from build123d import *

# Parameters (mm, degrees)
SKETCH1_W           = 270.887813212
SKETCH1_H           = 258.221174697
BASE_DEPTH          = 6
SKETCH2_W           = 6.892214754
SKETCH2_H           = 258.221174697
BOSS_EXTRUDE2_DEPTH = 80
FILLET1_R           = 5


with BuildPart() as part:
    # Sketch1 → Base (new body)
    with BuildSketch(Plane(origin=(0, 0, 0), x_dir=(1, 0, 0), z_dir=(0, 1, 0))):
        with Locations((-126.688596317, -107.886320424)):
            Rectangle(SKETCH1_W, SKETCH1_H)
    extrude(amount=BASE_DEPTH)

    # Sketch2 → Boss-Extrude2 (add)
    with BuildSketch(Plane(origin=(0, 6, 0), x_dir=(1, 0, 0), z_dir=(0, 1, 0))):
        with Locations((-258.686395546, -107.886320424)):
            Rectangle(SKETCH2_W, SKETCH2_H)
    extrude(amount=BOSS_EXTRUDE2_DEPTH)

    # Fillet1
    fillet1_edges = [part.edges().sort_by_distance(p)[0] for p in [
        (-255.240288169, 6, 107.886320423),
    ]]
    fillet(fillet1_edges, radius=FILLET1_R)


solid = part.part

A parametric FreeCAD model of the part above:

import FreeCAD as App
import Part
import Sketcher

V = App.Vector


def edges_at(feature, points):
    """Names of the edges that pass closest to the given points."""
    edges = feature.Shape.Edges
    near = lambda p: min(range(len(edges)), key=lambda i: edges[i].distToShape(Part.Vertex(*p))[0])
    return sorted({f"Edge{near(p) + 1}" for p in points})


def add_polygon(sketch, points):
    """Adds a closed chain of lines whose ends are joined by coincident constraints."""
    first, n = sketch.GeometryCount, len(points)
    for a, b in zip(points, points[1:] + points[:1]):
        sketch.addGeometry(Part.LineSegment(App.Vector(*a, 0), App.Vector(*b, 0)), False)
    for i in range(n):
        sketch.addConstraint(Sketcher.Constraint("Coincident", first + i, 2, first + (i + 1) % n, 1))

doc = App.newDocument("Part")
body = doc.addObject("PartDesign::Body", "Body")

# Sketch on XZ plane
sketch1 = body.newObject("Sketcher::SketchObject", "Sketch")
sketch1.AttachmentSupport = (doc.getObject("XZ_Plane"), [""])
sketch1.MapMode = "FlatFace"
add_polygon(sketch1, [(-262.132503, -21.224267), (-262.132503, 236.996908), (8.75531, 236.996908), (8.75531, -21.224267)])  # lines 0-3
sketch1.addConstraint([
    Sketcher.Constraint("Vertical", 0),
    Sketcher.Constraint("Horizontal", 1),
    Sketcher.Constraint("Vertical", 2),
    Sketcher.Constraint("Horizontal", 3),
    Sketcher.Constraint("DistanceX", 1, 1, 1, 2, 270.887813),
    Sketcher.Constraint("DistanceY", 0, 1, 0, 2, 258.221175),
    Sketcher.Constraint("DistanceX", -1, 1, 1, 2, 8.75531),
    Sketcher.Constraint("DistanceY", -1, 1, 0, 2, 236.996908),
])
pad1 = body.newObject("PartDesign::Pad", "Pad")
pad1.Profile = sketch1
pad1.Length = 6
pad1.Reversed = True

# Sketch on XZ plane
sketch2 = body.newObject("Sketcher::SketchObject", "Sketch001")
sketch2.AttachmentSupport = (doc.getObject("XZ_Plane"), [""])
sketch2.MapMode = "FlatFace"
sketch2.AttachmentOffset = App.Placement(V(0, 0, -6), App.Rotation())
add_polygon(sketch2, [(-262.132503, -21.224267), (-262.132503, 236.996908), (-255.240288, 236.996908), (-255.240288, -21.224267)])  # lines 0-3
sketch2.addConstraint([
    Sketcher.Constraint("Vertical", 0),
    Sketcher.Constraint("Horizontal", 1),
    Sketcher.Constraint("Vertical", 2),
    Sketcher.Constraint("Horizontal", 3),
    Sketcher.Constraint("DistanceX", 1, 1, 1, 2, 6.892215),
    Sketcher.Constraint("DistanceY", 0, 1, 0, 2, 258.221175),
    Sketcher.Constraint("DistanceX", 1, 2, -1, 1, 255.240288),
    Sketcher.Constraint("DistanceY", -1, 1, 0, 2, 236.996908),
])
pad2 = body.newObject("PartDesign::Pad", "Pad001")
pad2.Profile = sketch2
pad2.Length = 80
pad2.Reversed = True
doc.recompute()

fillet = body.newObject("PartDesign::Fillet", "Fillet")
fillet.Base = (pad2, edges_at(pad2, [(-255.24, 6, 107.886)]))
fillet.Radius = 5

doc.recompute()
